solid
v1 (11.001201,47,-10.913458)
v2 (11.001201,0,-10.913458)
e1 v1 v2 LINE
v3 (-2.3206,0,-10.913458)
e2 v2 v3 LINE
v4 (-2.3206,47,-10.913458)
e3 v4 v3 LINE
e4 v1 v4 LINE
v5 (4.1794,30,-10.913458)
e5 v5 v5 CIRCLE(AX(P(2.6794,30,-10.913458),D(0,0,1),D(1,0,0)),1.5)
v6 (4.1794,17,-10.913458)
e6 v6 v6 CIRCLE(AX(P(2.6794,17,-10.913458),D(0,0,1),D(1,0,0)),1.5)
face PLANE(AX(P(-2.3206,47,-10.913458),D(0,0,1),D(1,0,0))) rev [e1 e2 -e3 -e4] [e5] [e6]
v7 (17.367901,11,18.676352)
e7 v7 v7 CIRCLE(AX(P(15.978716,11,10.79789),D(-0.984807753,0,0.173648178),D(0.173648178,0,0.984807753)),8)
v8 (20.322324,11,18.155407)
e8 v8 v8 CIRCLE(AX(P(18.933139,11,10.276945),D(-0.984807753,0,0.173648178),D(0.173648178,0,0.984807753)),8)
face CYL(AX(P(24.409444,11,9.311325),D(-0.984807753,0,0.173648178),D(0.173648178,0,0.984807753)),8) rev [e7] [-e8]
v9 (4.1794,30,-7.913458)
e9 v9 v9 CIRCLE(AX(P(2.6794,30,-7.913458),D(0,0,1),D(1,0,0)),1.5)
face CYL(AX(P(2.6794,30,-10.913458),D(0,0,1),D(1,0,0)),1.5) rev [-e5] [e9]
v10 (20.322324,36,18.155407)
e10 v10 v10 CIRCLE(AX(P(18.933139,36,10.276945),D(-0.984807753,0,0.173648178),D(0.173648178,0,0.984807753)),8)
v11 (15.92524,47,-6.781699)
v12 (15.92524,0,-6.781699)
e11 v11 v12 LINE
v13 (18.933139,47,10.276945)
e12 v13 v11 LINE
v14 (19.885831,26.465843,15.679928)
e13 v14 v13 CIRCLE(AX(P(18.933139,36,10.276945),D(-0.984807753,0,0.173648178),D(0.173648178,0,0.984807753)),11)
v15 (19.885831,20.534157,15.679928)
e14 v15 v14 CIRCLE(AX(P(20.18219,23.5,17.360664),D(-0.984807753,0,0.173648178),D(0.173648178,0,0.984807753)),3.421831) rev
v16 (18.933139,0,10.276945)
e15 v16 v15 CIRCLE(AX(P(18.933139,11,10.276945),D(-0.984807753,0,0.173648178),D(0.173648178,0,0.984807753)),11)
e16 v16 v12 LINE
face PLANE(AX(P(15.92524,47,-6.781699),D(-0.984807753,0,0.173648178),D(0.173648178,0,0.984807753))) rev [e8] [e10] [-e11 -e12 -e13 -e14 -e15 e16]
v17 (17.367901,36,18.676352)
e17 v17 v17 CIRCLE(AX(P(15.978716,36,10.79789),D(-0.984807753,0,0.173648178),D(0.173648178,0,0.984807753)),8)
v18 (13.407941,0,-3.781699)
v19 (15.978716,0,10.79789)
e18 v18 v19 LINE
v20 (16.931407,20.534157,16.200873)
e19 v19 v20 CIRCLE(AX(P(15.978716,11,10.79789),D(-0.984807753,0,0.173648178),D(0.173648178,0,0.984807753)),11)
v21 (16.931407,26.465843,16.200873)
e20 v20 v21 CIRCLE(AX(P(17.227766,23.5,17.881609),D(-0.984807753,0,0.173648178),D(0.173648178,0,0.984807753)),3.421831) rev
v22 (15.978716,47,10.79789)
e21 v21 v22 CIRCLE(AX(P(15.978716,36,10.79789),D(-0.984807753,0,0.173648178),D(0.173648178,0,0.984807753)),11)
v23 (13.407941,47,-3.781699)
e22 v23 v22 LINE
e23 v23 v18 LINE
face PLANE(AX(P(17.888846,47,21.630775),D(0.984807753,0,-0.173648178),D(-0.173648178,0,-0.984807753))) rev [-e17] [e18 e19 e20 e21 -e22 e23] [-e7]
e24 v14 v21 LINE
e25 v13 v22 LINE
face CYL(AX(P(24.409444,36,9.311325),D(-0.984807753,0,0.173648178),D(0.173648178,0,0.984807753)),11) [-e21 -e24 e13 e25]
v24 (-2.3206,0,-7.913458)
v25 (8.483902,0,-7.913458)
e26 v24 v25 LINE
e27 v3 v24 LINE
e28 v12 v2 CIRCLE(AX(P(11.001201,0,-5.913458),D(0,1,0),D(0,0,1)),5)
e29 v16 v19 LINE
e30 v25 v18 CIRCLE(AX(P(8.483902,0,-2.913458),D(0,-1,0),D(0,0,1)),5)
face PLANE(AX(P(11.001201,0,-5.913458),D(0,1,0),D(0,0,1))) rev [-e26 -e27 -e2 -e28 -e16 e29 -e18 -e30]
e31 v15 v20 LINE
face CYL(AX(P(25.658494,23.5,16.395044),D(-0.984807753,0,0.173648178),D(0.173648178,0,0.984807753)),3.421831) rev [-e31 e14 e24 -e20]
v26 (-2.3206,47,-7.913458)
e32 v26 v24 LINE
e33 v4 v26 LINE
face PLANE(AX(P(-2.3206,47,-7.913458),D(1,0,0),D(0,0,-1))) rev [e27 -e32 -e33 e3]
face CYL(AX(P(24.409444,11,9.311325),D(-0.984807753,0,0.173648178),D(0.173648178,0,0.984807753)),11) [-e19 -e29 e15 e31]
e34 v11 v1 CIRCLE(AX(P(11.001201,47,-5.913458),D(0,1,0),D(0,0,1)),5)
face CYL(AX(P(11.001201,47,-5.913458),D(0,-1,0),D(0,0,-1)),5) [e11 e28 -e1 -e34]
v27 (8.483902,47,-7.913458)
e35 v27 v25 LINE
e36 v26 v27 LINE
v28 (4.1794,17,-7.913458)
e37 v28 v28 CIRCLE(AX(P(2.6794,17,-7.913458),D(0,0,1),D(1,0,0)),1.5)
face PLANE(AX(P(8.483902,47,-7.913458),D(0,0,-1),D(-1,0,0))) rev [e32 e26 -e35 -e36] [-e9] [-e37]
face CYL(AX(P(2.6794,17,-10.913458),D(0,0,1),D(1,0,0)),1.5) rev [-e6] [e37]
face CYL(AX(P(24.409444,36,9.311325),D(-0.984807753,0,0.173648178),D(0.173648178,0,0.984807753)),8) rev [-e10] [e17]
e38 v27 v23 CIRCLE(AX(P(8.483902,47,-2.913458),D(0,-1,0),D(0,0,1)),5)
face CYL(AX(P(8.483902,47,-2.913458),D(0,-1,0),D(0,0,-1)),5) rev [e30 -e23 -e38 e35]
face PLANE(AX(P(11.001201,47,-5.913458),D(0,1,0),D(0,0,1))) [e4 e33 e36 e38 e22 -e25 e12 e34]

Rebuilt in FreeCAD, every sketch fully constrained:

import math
import FreeCAD as App
import Part
import Sketcher
from FreeCAD import Vector
Q = App.Units.Quantity

doc = App.newDocument("Part")
body = doc.addObject("PartDesign::Body", "Body")

# Sketch on XZ plane
sketch1 = body.newObject("Sketcher::SketchObject", "Sketch")
sketch1.AttachmentSupport = (doc.getObject("XZ_Plane"), [""])
sketch1.MapMode = "FlatFace"
sketch1.addGeometry(Part.LineSegment(Vector(11.001201, -10.913458, 0), Vector(-2.3206, -10.913458, 0)), False)
sketch1.addGeometry(Part.LineSegment(Vector(-2.3206, -10.913458, 0), Vector(-2.3206, -7.913458, 0)), False)
sketch1.addGeometry(Part.LineSegment(Vector(-2.3206, -7.913458, 0), Vector(8.483902, -7.913458, 0)), False)
sketch1.addGeometry(Part.ArcOfCircle(Part.Circle(Vector(8.483902, -2.913458, 0), Vector(0, 0, 1), 5), math.radians(-90), math.radians(-10)), False)
sketch1.addGeometry(Part.LineSegment(Vector(13.407941, -3.781699, 0), Vector(17.888846, 21.630775, 0)), False)
sketch1.addGeometry(Part.LineSegment(Vector(17.888846, 21.630775, 0), Vector(20.843269, 21.10983, 0)), False)
sketch1.addGeometry(Part.LineSegment(Vector(20.843269, 21.10983, 0), Vector(15.92524, -6.781699, 0)), False)
sketch1.addGeometry(Part.ArcOfCircle(Part.Circle(Vector(11.001201, -5.913458, 0), Vector(0, 0, 1), 5), math.radians(-90), math.radians(-10)), False)
sketch1.addConstraint(Sketcher.Constraint("Coincident", 0, 2, 1, 1))
sketch1.addConstraint(Sketcher.Constraint("Coincident", 1, 2, 2, 1))
sketch1.addConstraint(Sketcher.Constraint("Tangent", 2, 2, 3, 1))
sketch1.addConstraint(Sketcher.Constraint("Tangent", 3, 2, 4, 1))
sketch1.addConstraint(Sketcher.Constraint("Coincident", 4, 2, 5, 1))
sketch1.addConstraint(Sketcher.Constraint("Coincident", 5, 2, 6, 1))
sketch1.addConstraint(Sketcher.Constraint("Tangent", 6, 2, 7, 2))
sketch1.addConstraint(Sketcher.Constraint("Tangent", 7, 1, 0, 1))
sketch1.addConstraint(Sketcher.Constraint("Horizontal", 0))
sketch1.addConstraint(Sketcher.Constraint("Vertical", 1))
sketch1.addConstraint(Sketcher.Constraint("Horizontal", 2))
sketch1.addConstraint(Sketcher.Constraint("Equal", 3, 7))
sketch1.addConstraint(Sketcher.Constraint("Perpendicular", 4, 5))
sketch1.addConstraint(Sketcher.Constraint("Perpendicular", 5, 6))
sketch1.addConstraint(Sketcher.Constraint("Radius", 3, Q("5 mm")))
sketch1.addConstraint(Sketcher.Constraint("DistanceY", 1, 1, 1, 2, Q("3 mm")))
sketch1.addConstraint(Sketcher.Constraint("Angle", 4, Q("80 deg")))
sketch1.addConstraint(Sketcher.Constraint("Distance", 5, Q("3 mm")))
sketch1.addConstraint(Sketcher.Constraint("DistanceX", 0, 2, 0, 1, Q("13.321801 mm")))
sketch1.addConstraint(Sketcher.Constraint("Distance", 4, Q("25.804502 mm")))
sketch1.addConstraint(Sketcher.Constraint("DistanceX", -1, 1, 7, 3, Q("11.001201 mm")))
sketch1.addConstraint(Sketcher.Constraint("DistanceY", 3, 2, -1, 1, Q("3.781699 mm")))
pad1 = body.newObject("PartDesign::Pad", "Pad")
pad1.Profile = sketch1
pad1.Length = 47
pad1.Reversed = True

# Sketch on XY plane
sketch2 = body.newObject("Sketcher::SketchObject", "Sketch001")
sketch2.AttachmentSupport = (doc.getObject("XY_Plane"), [""])
sketch2.MapMode = "FlatFace"
sketch2.AttachmentOffset = App.Placement(Vector(0, 0, -7.913458), App.Rotation())
sketch2.addGeometry(Part.Circle(Vector(2.6794, 30, 0), Vector(0, 0, 1), 1.5), False)
sketch2.addGeometry(Part.Circle(Vector(2.6794, 17, 0), Vector(0, 0, 1), 1.5), False)
sketch2.addConstraint(Sketcher.Constraint("Equal", 0, 1))
sketch2.addConstraint(Sketcher.Constraint("Vertical", 0, 3, 1, 3))
sketch2.addConstraint(Sketcher.Constraint("Diameter", 0, Q("3 mm")))
sketch2.addConstraint(Sketcher.Constraint("DistanceY", -1, 1, 0, 3, Q("30 mm")))
sketch2.addConstraint(Sketcher.Constraint("DistanceY", -1, 1, 1, 3, Q("17 mm")))
sketch2.addConstraint(Sketcher.Constraint("DistanceX", -1, 1, 0, 3, Q("2.6794 mm")))
pocket1 = body.newObject("PartDesign::Pocket", "Pocket")
pocket1.Profile = sketch2
pocket1.Type = "ThroughAll"

# Sketch on an angled plane
sketch3 = body.newObject("Sketcher::SketchObject", "Sketch002")
sketch3.Placement = App.Placement(Vector(13.65035, 0, -2.406925), App.Rotation(Vector(0.173648178, 0, 0.984807753), Vector(0, 1, 0), Vector(-0.984807753, 0, 0.173648178), "ZXY"))
sketch3.addGeometry(Part.LineSegment(Vector(24.40852, 47, 0), Vector(13.40852, 47, 0)), False)
sketch3.addGeometry(Part.ArcOfCircle(Part.Circle(Vector(13.40852, 36, 0), Vector(0, 0, 1), 11), math.radians(0), math.radians(90)), False)
sketch3.addGeometry(Part.LineSegment(Vector(24.40852, 36, 0), Vector(24.40852, 47, 0)), False)
sketch3.addGeometry(Part.LineSegment(Vector(24.40852, 0, 0), Vector(24.40852, 11, 0)), False)
sketch3.addGeometry(Part.ArcOfCircle(Part.Circle(Vector(13.40852, 11, 0), Vector(0, 0, 1), 11), math.radians(-90), math.radians(0)), False)
sketch3.addGeometry(Part.LineSegment(Vector(13.40852, 0, 0), Vector(24.40852, 0, 0)), False)
sketch3.addGeometry(Part.Circle(Vector(13.40852, 11, 0), Vector(0, 0, 1), 8), False)
sketch3.addGeometry(Part.Circle(Vector(13.40852, 36, 0), Vector(0, 0, 1), 8), False)
sketch3.addGeometry(Part.LineSegment(Vector(24.40852, 11, 0), Vector(24.40852, 36, 0)), False)
sketch3.addGeometry(Part.ArcOfCircle(Part.Circle(Vector(13.40852, 36, 0), Vector(0, 0, 1), 11), math.radians(-60.082167), math.radians(0)), False)
sketch3.addGeometry(Part.ArcOfCircle(Part.Circle(Vector(20.601517, 23.5, 0), Vector(0, 0, 1), 3.421831), math.radians(119.917833), math.radians(240.082167)), False)
sketch3.addGeometry(Part.ArcOfCircle(Part.Circle(Vector(13.40852, 11, 0), Vector(0, 0, 1), 11), math.radians(0), math.radians(60.082167)), False)
sketch3.addConstraint(Sketcher.Constraint("Tangent", 0, 2, 1, 2))
sketch3.addConstraint(Sketcher.Constraint("Tangent", 1, 1, 2, 1))
sketch3.addConstraint(Sketcher.Constraint("Coincident", 2, 2, 0, 1))
sketch3.addConstraint(Sketcher.Constraint("Tangent", 3, 2, 4, 2))
sketch3.addConstraint(Sketcher.Constraint("Tangent", 4, 1, 5, 1))
sketch3.addConstraint(Sketcher.Constraint("Coincident", 5, 2, 3, 1))
sketch3.addConstraint(Sketcher.Constraint("Tangent", 8, 2, 9, 2))
sketch3.addConstraint(Sketcher.Constraint("Tangent", 9, 1, 10, 1))
sketch3.addConstraint(Sketcher.Constraint("Tangent", 10, 2, 11, 2))
sketch3.addConstraint(Sketcher.Constraint("Tangent", 11, 1, 8, 1))
sketch3.addConstraint(Sketcher.Constraint("Horizontal", 0))
sketch3.addConstraint(Sketcher.Constraint("Vertical", 2))
sketch3.addConstraint(Sketcher.Constraint("Vertical", 3))
sketch3.addConstraint(Sketcher.Constraint("Horizontal", 5))
sketch3.addConstraint(Sketcher.Constraint("Vertical", 8))
sketch3.addConstraint(Sketcher.Constraint("Coincident", 6, 3, 4, 3))
sketch3.addConstraint(Sketcher.Constraint("Coincident", 7, 3, 1, 3))
sketch3.addConstraint(Sketcher.Constraint("Coincident", 9, 3, 1, 3))
sketch3.addConstraint(Sketcher.Constraint("Coincident", 11, 3, 4, 3))
sketch3.addConstraint(Sketcher.Constraint("Equal", 1, 4))
sketch3.addConstraint(Sketcher.Constraint("Equal", 6, 7))
sketch3.addConstraint(Sketcher.Constraint("Equal", 4, 9))
sketch3.addConstraint(Sketcher.Constraint("Equal", 9, 11))
sketch3.addConstraint(Sketcher.Constraint("PointOnObject", 4, 1, -1))
sketch3.addConstraint(Sketcher.Constraint("Diameter", 6, Q("16 mm")))
sketch3.addConstraint(Sketcher.Constraint("Radius", 1, Q("11 mm")))
sketch3.addConstraint(Sketcher.Constraint("DistanceY", 8, 1, 8, 2, Q("25 mm")))
sketch3.addConstraint(Sketcher.Constraint("Radius", 10, Q("3.421831 mm")))
sketch3.addConstraint(Sketcher.Constraint("DistanceX", -1, 1, 1, 3, Q("13.40852 mm")))
pocket2 = body.newObject("PartDesign::Pocket", "Pocket001")
pocket2.Profile = sketch3
pocket2.Type = "ThroughAll"

doc.recompute()
